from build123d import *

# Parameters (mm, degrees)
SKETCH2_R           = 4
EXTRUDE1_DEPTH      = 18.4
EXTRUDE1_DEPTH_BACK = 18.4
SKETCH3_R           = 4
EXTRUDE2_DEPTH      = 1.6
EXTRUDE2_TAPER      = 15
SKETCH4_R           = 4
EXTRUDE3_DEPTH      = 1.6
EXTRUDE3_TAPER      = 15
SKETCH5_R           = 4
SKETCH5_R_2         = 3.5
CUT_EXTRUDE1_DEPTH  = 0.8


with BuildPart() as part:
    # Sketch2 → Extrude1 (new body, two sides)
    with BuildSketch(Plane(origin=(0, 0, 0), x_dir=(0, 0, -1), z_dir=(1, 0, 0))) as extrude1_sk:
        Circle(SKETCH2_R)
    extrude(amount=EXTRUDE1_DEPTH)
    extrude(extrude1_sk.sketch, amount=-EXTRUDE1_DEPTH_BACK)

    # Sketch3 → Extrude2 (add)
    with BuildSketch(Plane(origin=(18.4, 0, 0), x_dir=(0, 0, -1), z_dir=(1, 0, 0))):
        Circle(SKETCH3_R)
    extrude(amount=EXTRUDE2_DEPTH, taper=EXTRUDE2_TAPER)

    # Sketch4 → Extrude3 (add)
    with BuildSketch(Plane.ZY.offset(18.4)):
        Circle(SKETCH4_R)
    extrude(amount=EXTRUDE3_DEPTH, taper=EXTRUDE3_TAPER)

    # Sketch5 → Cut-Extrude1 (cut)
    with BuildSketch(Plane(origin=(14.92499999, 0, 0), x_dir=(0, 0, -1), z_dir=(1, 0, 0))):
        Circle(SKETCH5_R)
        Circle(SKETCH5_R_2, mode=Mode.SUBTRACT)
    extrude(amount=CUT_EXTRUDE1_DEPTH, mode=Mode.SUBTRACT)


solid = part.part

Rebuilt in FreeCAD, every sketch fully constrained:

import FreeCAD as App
import Part
import Sketcher

doc = App.newDocument("Part")
params = doc.addObject("Spreadsheet::Sheet", "Params")
for row, (alias, value) in enumerate([
    ("sketch1_diameter", "8 mm"),
    ("pad1_length", "18.4 mm"),
    ("pad1_length2", "18.4 mm"),
    ("sketch2_diameter", "8 mm"),
    ("pad2_length", "1.6 mm"),
    ("pad2_taper", "-15 deg"),
    ("sketch3_diameter", "8 mm"),
    ("pad3_length", "1.6 mm"),
    ("pad3_taper", "-15 deg"),
    ("sketch4_diameter", "8 mm"),
    ("sketch4_diameter2", "7 mm"),
    ("pocket1_length", "0.8 mm"),
], start=1):
    params.set(f"A{row}", alias)
    params.set(f"B{row}", "=" + value)
    params.setAlias(f"B{row}", alias)

body = doc.addObject("PartDesign::Body", "Body")

# Sketch on YZ plane
sketch1 = body.newObject("Sketcher::SketchObject", "Sketch")
sketch1.AttachmentSupport = (doc.getObject("YZ_Plane"), [""])
sketch1.MapMode = "FlatFace"
sketch1.addGeometry(Part.Circle(App.Vector(0, 0, 0), App.Vector(0, 0, 1), 4), False)
sketch1.addConstraint([
    Sketcher.Constraint("Coincident", 0, 3, -1, 1),
    Sketcher.Constraint("Diameter", 0, 8.0),
])
sketch1.setExpression("Constraints[1]", "Params.sketch1_diameter")
pad1 = body.newObject("PartDesign::Pad", "Pad")
pad1.Profile = sketch1
pad1.Type = "TwoLengths"
pad1.setExpression("Length", "Params.pad1_length")
pad1.setExpression("Length2", "Params.pad1_length2")

# Sketch on YZ plane
sketch2 = body.newObject("Sketcher::SketchObject", "Sketch001")
sketch2.AttachmentSupport = (doc.getObject("YZ_Plane"), [""])
sketch2.MapMode = "FlatFace"
sketch2.AttachmentOffset = App.Placement(App.Vector(0, 0, 18.4), App.Rotation())
sketch2.addGeometry(Part.Circle(App.Vector(0, 0, 0), App.Vector(0, 0, 1), 4), False)
sketch2.addConstraint([
    Sketcher.Constraint("Coincident", 0, 3, -1, 1),
    Sketcher.Constraint("Diameter", 0, 8.0),
])
sketch2.setExpression("Constraints[1]", "Params.sketch2_diameter")
pad2 = body.newObject("PartDesign::Pad", "Pad001")
pad2.Profile = sketch2
pad2.setExpression("Length", "Params.pad2_length")
pad2.setExpression("TaperAngle", "Params.pad2_taper")

# Sketch on YZ plane
sketch3 = body.newObject("Sketcher::SketchObject", "Sketch002")
sketch3.AttachmentSupport = (doc.getObject("YZ_Plane"), [""])
sketch3.MapMode = "FlatFace"
sketch3.AttachmentOffset = App.Placement(App.Vector(0, 0, -18.4), App.Rotation())
sketch3.addGeometry(Part.Circle(App.Vector(0, 0, 0), App.Vector(0, 0, 1), 4), False)
sketch3.addConstraint([
    Sketcher.Constraint("Coincident", 0, 3, -1, 1),
    Sketcher.Constraint("Diameter", 0, 8.0),
])
sketch3.setExpression("Constraints[1]", "Params.sketch3_diameter")
pad3 = body.newObject("PartDesign::Pad", "Pad002")
pad3.Profile = sketch3
pad3.setExpression("Length", "Params.pad3_length")
pad3.Reversed = True
pad3.setExpression("TaperAngle", "Params.pad3_taper")

# Sketch on YZ plane
sketch4 = body.newObject("Sketcher::SketchObject", "Sketch003")
sketch4.AttachmentSupport = (doc.getObject("YZ_Plane"), [""])
sketch4.MapMode = "FlatFace"
sketch4.AttachmentOffset = App.Placement(App.Vector(0, 0, 14.925), App.Rotation())
sketch4.addGeometry([
    Part.Circle(App.Vector(0, 0, 0), App.Vector(0, 0, 1), 4),
    Part.Circle(App.Vector(0, 0, 0), App.Vector(0, 0, 1), 3.5),
], False)
sketch4.addConstraint([
    Sketcher.Constraint("Coincident", 0, 3, -1, 1),
    Sketcher.Constraint("Coincident", 1, 3, -1, 1),
    Sketcher.Constraint("Diameter", 0, 8.0),
    Sketcher.Constraint("Diameter", 1, 7.0),
])
sketch4.setExpression("Constraints[2]", "Params.sketch4_diameter")
sketch4.setExpression("Constraints[3]", "Params.sketch4_diameter2")
pocket1 = body.newObject("PartDesign::Pocket", "Pocket")
pocket1.Profile = sketch4
pocket1.setExpression("Length", "Params.pocket1_length")
pocket1.Reversed = True

doc.recompute()
